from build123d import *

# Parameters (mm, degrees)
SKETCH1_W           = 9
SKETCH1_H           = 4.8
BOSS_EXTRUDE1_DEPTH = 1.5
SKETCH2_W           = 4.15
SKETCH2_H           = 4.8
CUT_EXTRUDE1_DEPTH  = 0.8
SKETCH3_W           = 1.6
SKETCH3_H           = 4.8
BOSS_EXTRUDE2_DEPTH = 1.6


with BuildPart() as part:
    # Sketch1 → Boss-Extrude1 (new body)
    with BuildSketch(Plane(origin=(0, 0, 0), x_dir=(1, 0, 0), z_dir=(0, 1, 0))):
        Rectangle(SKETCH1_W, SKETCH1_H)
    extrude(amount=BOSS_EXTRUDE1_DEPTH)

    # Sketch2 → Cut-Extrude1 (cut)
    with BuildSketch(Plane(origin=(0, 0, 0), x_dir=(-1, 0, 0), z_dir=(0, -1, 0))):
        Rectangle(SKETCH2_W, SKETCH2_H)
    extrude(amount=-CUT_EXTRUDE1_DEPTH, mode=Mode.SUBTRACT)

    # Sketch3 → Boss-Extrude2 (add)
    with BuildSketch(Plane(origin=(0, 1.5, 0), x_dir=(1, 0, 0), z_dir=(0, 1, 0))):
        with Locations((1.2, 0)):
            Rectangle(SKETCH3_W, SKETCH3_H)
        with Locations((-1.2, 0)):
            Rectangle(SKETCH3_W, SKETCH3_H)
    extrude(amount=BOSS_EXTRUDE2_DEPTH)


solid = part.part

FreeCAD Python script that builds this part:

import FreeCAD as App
import Part
import Sketcher
Q = App.Units.Quantity


def add_polygon(sketch, points):
    """Adds a closed chain of lines whose ends are joined by coincident constraints."""
    first, n = sketch.GeometryCount, len(points)
    for a, b in zip(points, points[1:] + points[:1]):
        sketch.addGeometry(Part.LineSegment(App.Vector(*a, 0), App.Vector(*b, 0)), False)
    for i in range(n):
        sketch.addConstraint(Sketcher.Constraint("Coincident", first + i, 2, first + (i + 1) % n, 1))

doc = App.newDocument("Part")
body = doc.addObject("PartDesign::Body", "Body")

sketch1 = body.newObject("Sketcher::SketchObject", "Sketch")
sketch1.AttachmentSupport = (doc.getObject("XZ_Plane"), [""])
sketch1.MapMode = "FlatFace"
add_polygon(sketch1, [(-4.5, -2.4), (-4.5, 2.4), (4.5, 2.4), (4.5, -2.4)])
sketch1.addConstraint([
    Sketcher.Constraint("Vertical", 0),
    Sketcher.Constraint("Horizontal", 1),
    Sketcher.Constraint("Vertical", 2),
    Sketcher.Constraint("Horizontal", 3),
    Sketcher.Constraint("Symmetric", 0, 2, 2, 2, -1, 1),
    Sketcher.Constraint("DistanceX", 1, 1, 1, 2, Q("9 mm")),
    Sketcher.Constraint("DistanceY", 0, 1, 0, 2, Q("4.8 mm")),
])
pad1 = body.newObject("PartDesign::Pad", "Pad")
pad1.Profile = sketch1
pad1.Length = 1.5
pad1.Reversed = True

sketch2 = body.newObject("Sketcher::SketchObject", "Sketch001")
sketch2.AttachmentSupport = (doc.getObject("XZ_Plane"), [""])
sketch2.MapMode = "FlatFace"
add_polygon(sketch2, [(2.075, -2.4), (2.075, 2.4), (-2.075, 2.4), (-2.075, -2.4)])
sketch2.addConstraint([
    Sketcher.Constraint("Vertical", 0),
    Sketcher.Constraint("Horizontal", 1),
    Sketcher.Constraint("Vertical", 2),
    Sketcher.Constraint("Horizontal", 3),
    Sketcher.Constraint("Symmetric", 0, 2, 2, 2, -1, 1),
    Sketcher.Constraint("DistanceY", 0, 1, 0, 2, Q("4.8 mm")),
    Sketcher.Constraint("DistanceX", 1, 2, 1, 1, Q("4.15 mm")),
])
pocket1 = body.newObject("PartDesign::Pocket", "Pocket")
pocket1.Profile = sketch2
pocket1.Length = 0.8

sketch3 = body.newObject("Sketcher::SketchObject", "Sketch002")
sketch3.AttachmentSupport = (doc.getObject("XZ_Plane"), [""])
sketch3.MapMode = "FlatFace"
sketch3.AttachmentOffset = App.Placement(App.Vector(0, 0, -1.5), App.Rotation())
add_polygon(sketch3, [(0.4, -2.4), (0.4, 2.4), (2, 2.4), (2, -2.4)])
add_polygon(sketch3, [(-2, -2.4), (-2, 2.4), (-0.4, 2.4), (-0.4, -2.4)])
sketch3.addConstraint([
    Sketcher.Constraint("Vertical", 0),
    Sketcher.Constraint("Horizontal", 1),
    Sketcher.Constraint("Vertical", 2),
    Sketcher.Constraint("Horizontal", 3),
    Sketcher.Constraint("Vertical", 4),
    Sketcher.Constraint("Horizontal", 5),
    Sketcher.Constraint("Vertical", 6),
    Sketcher.Constraint("Horizontal", 7),
    Sketcher.Constraint("Symmetric", 2, 2, 4, 2, -1, 1),
    Sketcher.Constraint("Symmetric", 0, 2, 6, 2, -1, 1),
    Sketcher.Constraint("Horizontal", 1, 2, 4, 2),
    Sketcher.Constraint("DistanceX", 1, 1, 1, 2, Q("1.6 mm")),
    Sketcher.Constraint("DistanceY", 0, 1, 0, 2, Q("4.8 mm")),
    Sketcher.Constraint("DistanceX", -1, 1, 1, 2, Q("2 mm")),
])
pad2 = body.newObject("PartDesign::Pad", "Pad001")
pad2.Profile = sketch3
pad2.Length = 1.6
pad2.Reversed = True

doc.recompute()
